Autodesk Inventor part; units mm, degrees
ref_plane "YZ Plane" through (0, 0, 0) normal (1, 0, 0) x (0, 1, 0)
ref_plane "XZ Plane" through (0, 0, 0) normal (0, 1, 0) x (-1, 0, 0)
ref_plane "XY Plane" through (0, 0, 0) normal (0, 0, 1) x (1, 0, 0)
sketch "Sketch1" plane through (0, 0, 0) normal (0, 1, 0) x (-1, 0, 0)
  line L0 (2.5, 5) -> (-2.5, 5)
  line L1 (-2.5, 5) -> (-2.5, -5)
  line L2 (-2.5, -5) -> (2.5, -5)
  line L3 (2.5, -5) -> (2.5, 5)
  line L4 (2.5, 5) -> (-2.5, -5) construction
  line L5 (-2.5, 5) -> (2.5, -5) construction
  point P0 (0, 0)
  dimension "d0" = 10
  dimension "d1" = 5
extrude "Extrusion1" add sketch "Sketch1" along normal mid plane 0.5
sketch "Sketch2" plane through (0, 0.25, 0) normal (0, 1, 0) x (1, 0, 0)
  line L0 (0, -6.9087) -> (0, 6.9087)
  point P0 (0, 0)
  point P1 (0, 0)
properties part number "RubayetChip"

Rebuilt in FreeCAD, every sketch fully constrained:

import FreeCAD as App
import Part
import Sketcher


def add_polygon(sketch, points):
    """Adds a closed chain of lines whose ends are joined by coincident constraints."""
    first, n = sketch.GeometryCount, len(points)
    for a, b in zip(points, points[1:] + points[:1]):
        sketch.addGeometry(Part.LineSegment(App.Vector(*a, 0), App.Vector(*b, 0)), False)
    for i in range(n):
        sketch.addConstraint(Sketcher.Constraint("Coincident", first + i, 2, first + (i + 1) % n, 1))

doc = App.newDocument("Part")
body = doc.addObject("PartDesign::Body", "Body")

sketch1 = body.newObject("Sketcher::SketchObject", "Sketch")
sketch1.AttachmentSupport = (doc.getObject("XZ_Plane"), [""])
sketch1.MapMode = "FlatFace"
add_polygon(sketch1, [(-2, -5), (-2, 5), (2, 5), (2, -5)])
sketch1.addConstraint(Sketcher.Constraint("Vertical", 0))
sketch1.addConstraint(Sketcher.Constraint("Horizontal", 1))
sketch1.addConstraint(Sketcher.Constraint("Vertical", 2))
sketch1.addConstraint(Sketcher.Constraint("Horizontal", 3))
sketch1.addConstraint(Sketcher.Constraint("Symmetric", 0, 2, 2, 2, -1, 1))
sketch1.addConstraint(Sketcher.Constraint("DistanceX", 1, 1, 1, 2, 5.0))
sketch1.addConstraint(Sketcher.Constraint("DistanceY", 0, 1, 0, 2, 10.0))
pad1 = body.newObject("PartDesign::Pad", "Pad")
pad1.Profile = sketch1
pad1.Length = 0.5
pad1.Midplane = True

doc.recompute()
